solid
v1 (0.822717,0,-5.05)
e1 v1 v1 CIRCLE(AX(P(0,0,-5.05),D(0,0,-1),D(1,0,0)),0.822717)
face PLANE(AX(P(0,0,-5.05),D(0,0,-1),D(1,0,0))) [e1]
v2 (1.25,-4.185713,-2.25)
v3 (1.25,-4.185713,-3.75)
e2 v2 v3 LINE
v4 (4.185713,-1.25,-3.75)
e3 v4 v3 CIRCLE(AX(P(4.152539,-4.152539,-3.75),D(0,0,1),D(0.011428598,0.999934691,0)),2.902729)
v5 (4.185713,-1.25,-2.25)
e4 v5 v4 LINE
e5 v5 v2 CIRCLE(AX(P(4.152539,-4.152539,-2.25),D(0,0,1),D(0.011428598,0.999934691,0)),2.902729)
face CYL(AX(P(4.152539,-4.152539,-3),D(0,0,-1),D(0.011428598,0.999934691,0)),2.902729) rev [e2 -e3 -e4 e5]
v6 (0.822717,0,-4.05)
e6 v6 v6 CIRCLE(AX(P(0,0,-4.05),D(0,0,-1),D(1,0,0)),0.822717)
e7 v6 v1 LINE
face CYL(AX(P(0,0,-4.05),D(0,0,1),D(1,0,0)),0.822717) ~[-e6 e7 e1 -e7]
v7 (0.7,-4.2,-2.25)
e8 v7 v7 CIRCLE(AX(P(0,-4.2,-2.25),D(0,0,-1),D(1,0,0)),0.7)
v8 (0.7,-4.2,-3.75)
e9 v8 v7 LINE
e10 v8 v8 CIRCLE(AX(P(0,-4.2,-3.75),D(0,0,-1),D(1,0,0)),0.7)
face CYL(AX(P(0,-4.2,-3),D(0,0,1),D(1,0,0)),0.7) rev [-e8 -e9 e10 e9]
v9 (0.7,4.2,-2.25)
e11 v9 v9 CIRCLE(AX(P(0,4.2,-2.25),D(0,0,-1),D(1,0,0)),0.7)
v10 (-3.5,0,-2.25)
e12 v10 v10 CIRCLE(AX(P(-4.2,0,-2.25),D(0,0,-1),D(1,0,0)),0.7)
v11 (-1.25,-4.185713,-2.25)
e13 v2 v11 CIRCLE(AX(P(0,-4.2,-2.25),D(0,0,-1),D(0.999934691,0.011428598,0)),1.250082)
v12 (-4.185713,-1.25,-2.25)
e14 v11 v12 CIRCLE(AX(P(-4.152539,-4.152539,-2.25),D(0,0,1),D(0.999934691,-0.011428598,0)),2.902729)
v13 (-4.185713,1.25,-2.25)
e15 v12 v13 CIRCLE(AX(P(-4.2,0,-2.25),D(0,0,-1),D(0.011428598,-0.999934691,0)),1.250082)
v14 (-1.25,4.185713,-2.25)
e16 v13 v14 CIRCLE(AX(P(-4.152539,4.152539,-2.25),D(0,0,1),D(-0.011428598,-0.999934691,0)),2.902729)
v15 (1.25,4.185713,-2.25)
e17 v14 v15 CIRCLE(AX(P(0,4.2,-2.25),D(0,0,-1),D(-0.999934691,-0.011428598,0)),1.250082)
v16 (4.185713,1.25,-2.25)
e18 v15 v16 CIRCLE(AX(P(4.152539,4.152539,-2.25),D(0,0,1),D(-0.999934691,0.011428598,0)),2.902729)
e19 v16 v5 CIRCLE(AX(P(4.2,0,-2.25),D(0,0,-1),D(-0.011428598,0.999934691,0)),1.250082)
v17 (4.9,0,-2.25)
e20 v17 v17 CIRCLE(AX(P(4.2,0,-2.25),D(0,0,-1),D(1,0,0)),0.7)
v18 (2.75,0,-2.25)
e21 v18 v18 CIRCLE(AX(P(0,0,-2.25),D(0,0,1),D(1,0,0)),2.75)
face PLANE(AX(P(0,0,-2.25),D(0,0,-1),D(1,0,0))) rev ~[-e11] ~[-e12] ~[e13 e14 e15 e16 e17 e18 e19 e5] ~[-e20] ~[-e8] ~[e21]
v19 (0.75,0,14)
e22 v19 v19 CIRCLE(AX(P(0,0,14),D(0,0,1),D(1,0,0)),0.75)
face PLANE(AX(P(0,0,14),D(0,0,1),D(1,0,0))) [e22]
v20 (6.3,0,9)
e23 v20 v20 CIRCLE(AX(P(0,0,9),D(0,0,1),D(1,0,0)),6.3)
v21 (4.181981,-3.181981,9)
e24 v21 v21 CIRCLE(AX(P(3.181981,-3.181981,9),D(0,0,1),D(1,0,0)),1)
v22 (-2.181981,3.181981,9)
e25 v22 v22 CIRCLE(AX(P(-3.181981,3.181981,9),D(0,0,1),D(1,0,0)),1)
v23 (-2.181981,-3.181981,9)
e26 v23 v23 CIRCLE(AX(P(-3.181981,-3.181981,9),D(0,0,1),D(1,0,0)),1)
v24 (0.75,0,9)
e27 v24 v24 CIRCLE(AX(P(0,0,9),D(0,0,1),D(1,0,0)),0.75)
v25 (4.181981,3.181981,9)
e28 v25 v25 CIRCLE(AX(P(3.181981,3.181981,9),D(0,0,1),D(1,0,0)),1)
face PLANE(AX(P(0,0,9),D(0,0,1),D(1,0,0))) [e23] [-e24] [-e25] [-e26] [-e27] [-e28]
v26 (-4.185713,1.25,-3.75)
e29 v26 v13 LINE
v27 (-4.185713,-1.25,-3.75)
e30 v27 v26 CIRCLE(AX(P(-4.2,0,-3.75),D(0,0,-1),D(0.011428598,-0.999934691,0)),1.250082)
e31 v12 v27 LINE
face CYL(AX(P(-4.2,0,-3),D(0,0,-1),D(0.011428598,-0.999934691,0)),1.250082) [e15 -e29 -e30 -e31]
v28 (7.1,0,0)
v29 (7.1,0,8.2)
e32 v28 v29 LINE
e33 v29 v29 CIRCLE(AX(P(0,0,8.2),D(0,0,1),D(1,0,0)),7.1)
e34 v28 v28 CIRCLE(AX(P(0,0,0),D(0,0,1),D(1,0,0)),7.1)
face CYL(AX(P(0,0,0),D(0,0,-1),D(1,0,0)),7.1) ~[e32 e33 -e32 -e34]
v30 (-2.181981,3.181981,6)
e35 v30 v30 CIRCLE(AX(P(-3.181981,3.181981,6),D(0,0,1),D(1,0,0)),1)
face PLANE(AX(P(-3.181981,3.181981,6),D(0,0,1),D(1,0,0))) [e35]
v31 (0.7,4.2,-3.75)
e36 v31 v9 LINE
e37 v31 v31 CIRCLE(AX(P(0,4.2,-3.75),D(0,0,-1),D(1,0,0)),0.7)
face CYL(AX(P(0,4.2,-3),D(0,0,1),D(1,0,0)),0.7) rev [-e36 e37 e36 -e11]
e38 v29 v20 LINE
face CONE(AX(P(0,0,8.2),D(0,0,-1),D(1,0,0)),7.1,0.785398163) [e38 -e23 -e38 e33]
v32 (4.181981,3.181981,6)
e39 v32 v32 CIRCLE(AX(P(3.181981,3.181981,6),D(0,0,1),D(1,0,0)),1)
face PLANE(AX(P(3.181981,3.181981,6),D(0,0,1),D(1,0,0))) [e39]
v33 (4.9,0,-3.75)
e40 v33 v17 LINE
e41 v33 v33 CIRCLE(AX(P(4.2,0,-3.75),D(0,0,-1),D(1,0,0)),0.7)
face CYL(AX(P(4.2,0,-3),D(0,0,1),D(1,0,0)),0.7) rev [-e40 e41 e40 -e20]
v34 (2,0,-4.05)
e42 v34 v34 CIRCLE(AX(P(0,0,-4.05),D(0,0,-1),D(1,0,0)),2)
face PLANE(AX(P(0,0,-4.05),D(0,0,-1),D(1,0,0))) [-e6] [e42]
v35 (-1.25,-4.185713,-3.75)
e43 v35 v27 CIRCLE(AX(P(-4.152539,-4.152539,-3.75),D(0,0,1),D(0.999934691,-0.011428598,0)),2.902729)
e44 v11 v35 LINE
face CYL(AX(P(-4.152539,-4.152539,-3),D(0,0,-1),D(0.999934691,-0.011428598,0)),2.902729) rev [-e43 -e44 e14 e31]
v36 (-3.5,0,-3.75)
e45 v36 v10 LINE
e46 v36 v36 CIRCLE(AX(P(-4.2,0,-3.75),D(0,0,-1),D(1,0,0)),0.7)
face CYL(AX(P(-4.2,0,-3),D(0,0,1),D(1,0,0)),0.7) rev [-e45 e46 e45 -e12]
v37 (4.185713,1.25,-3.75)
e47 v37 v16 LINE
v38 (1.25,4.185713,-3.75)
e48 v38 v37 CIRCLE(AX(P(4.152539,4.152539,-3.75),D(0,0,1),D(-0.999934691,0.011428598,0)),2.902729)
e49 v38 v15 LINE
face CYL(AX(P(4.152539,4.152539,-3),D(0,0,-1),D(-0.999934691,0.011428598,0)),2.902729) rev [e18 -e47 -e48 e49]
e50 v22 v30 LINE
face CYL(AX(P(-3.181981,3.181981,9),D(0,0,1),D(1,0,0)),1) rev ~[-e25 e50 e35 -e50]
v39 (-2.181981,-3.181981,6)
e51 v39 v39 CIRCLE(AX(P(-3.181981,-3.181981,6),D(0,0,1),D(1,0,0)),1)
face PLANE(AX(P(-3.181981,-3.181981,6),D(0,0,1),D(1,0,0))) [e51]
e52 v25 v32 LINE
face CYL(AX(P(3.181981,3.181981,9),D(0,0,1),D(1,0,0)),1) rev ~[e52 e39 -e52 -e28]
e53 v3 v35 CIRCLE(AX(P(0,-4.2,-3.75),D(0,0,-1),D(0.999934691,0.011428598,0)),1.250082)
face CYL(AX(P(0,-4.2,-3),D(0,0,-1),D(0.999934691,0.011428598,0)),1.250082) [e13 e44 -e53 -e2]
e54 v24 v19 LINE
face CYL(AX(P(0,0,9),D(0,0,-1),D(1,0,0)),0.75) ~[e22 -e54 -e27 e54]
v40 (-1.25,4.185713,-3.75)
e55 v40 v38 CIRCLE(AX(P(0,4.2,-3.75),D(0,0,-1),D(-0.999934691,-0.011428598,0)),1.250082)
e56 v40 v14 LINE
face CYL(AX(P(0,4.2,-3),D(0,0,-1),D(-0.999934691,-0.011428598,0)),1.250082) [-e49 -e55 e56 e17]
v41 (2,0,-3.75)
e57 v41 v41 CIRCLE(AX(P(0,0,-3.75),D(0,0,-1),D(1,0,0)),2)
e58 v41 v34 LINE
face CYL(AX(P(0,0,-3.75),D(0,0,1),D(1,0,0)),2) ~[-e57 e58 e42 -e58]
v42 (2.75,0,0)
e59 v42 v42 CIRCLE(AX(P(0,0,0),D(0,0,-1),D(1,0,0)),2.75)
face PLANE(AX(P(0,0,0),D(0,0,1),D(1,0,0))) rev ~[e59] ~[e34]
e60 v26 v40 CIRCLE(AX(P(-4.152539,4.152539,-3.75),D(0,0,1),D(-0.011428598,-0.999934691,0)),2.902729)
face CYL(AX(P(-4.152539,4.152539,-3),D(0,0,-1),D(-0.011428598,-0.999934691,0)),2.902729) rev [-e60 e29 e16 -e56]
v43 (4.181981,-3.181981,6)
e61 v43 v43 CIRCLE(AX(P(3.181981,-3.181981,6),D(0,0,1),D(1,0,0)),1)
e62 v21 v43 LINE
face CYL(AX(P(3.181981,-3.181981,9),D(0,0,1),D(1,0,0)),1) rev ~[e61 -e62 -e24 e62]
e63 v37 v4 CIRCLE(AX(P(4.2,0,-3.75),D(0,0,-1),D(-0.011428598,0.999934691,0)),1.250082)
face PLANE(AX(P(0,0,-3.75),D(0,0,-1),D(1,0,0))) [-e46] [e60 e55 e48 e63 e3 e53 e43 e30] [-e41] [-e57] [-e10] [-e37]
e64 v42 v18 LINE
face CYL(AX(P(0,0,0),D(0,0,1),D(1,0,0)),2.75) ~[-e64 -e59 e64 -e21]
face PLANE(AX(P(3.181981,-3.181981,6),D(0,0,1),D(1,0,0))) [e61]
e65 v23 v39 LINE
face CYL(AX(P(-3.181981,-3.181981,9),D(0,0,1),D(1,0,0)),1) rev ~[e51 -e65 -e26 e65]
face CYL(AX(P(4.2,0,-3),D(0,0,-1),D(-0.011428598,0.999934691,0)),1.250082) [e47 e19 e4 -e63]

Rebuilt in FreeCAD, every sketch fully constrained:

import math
import FreeCAD as App
import Part
import Sketcher
Q = App.Units.Quantity


def edges_at(feature, points):
    """Names of the edges that pass closest to the given points."""
    edges = feature.Shape.Edges
    near = lambda p: min(range(len(edges)), key=lambda i: edges[i].distToShape(Part.Vertex(*p))[0])
    return sorted({f"Edge{near(p) + 1}" for p in points})

doc = App.newDocument("Part")
params = doc.addObject("Spreadsheet::Sheet", "Params")
for row, (alias, value) in enumerate([
    ("sketch1_diameter", "14.2 mm"),
    ("pad1_length", "9 mm"),
    ("sketch2_diameter", "1.5 mm"),
    ("pad2_length", "5 mm"),
    ("sketch3_diameter", "2 mm"),
    ("pocket1_length", "3 mm"),
    ("sketch4_diameter", "5.5 mm"),
    ("pad3_length", "3 mm"),
    ("sketch5_diameter", "1.4 mm"),
    ("pad4_length", "1.5 mm"),
    ("sketch6_diameter", "4 mm"),
    ("pad5_length", "0.3 mm"),
    ("pad6_length", "1 mm"),
    ("chamfer_size", "0.8 mm"),
], start=1):
    params.set(f"A{row}", alias)
    params.set(f"B{row}", "=" + value)
    params.setAlias(f"B{row}", alias)

body = doc.addObject("PartDesign::Body", "Body")

# Sketch on XY plane
sketch1 = body.newObject("Sketcher::SketchObject", "Sketch")
sketch1.AttachmentSupport = (doc.getObject("XY_Plane"), [""])
sketch1.MapMode = "FlatFace"
sketch1.addGeometry(Part.Circle(App.Vector(0, 0, 0), App.Vector(0, 0, 1), 7), False)
sketch1.addConstraint([
    Sketcher.Constraint("Coincident", 0, 3, -1, 1),
    Sketcher.Constraint("Diameter", 0, Q("14.2 mm")),
])
sketch1.setExpression("Constraints[1]", "Params.sketch1_diameter")
pad1 = body.newObject("PartDesign::Pad", "Pad")
pad1.Profile = sketch1
pad1.setExpression("Length", "Params.pad1_length")

# Sketch on XY plane
sketch2 = body.newObject("Sketcher::SketchObject", "Sketch001")
sketch2.AttachmentSupport = (doc.getObject("XY_Plane"), [""])
sketch2.MapMode = "FlatFace"
sketch2.AttachmentOffset = App.Placement(App.Vector(0, 0, 9), App.Rotation())
sketch2.addGeometry(Part.Circle(App.Vector(0, 0, 0), App.Vector(0, 0, 1), 0.8), False)
sketch2.addConstraint([
    Sketcher.Constraint("Coincident", 0, 3, -1, 1),
    Sketcher.Constraint("Diameter", 0, Q("1.5 mm")),
])
sketch2.setExpression("Constraints[1]", "Params.sketch2_diameter")
pad2 = body.newObject("PartDesign::Pad", "Pad001")
pad2.Profile = sketch2
pad2.setExpression("Length", "Params.pad2_length")

# Sketch on XY plane
sketch3 = body.newObject("Sketcher::SketchObject", "Sketch002")
sketch3.AttachmentSupport = (doc.getObject("XY_Plane"), [""])
sketch3.MapMode = "FlatFace"
sketch3.AttachmentOffset = App.Placement(App.Vector(0, 0, 9), App.Rotation())
sketch3.addGeometry([
    Part.Circle(App.Vector(3.2, 3.2, 0), App.Vector(0, 0, 1), 1),
    Part.Circle(App.Vector(-3.2, 3.2, 0), App.Vector(0, 0, 1), 1),
    Part.Circle(App.Vector(-3.2, -3.2, 0), App.Vector(0, 0, 1), 1),
    Part.Circle(App.Vector(3.2, -3.2, 0), App.Vector(0, 0, 1), 1),
], False)
sketch3.addConstraint([
    Sketcher.Constraint("Equal", 0, 1),
    Sketcher.Constraint("Equal", 1, 2),
    Sketcher.Constraint("Equal", 2, 3),
    Sketcher.Constraint("Symmetric", 0, 3, 2, 3, -1, 1),
    Sketcher.Constraint("Symmetric", 1, 3, 3, 3, -1, 1),
    Sketcher.Constraint("Symmetric", 0, 3, 1, 3, -2),
    Sketcher.Constraint("Diameter", 0, Q("2 mm")),
    Sketcher.Constraint("DistanceX", -1, 1, 0, 3, Q("3.181981 mm")),
    Sketcher.Constraint("DistanceY", -1, 1, 0, 3, Q("3.181981 mm")),
])
sketch3.setExpression("Constraints[6]", "Params.sketch3_diameter")
pocket1 = body.newObject("PartDesign::Pocket", "Pocket")
pocket1.Profile = sketch3
pocket1.setExpression("Length", "Params.pocket1_length")

# Sketch on XY plane
sketch4 = body.newObject("Sketcher::SketchObject", "Sketch003")
sketch4.AttachmentSupport = (doc.getObject("XY_Plane"), [""])
sketch4.MapMode = "FlatFace"
sketch4.addGeometry(Part.Circle(App.Vector(0, 0, 0), App.Vector(0, 0, 1), 2.8), False)
sketch4.addConstraint([
    Sketcher.Constraint("Coincident", 0, 3, -1, 1),
    Sketcher.Constraint("Diameter", 0, Q("5.5 mm")),
])
sketch4.setExpression("Constraints[1]", "Params.sketch4_diameter")
pad3 = body.newObject("PartDesign::Pad", "Pad002")
pad3.Profile = sketch4
pad3.setExpression("Length", "Params.pad3_length")
pad3.Reversed = True

# Sketch on XY plane
sketch5 = body.newObject("Sketcher::SketchObject", "Sketch004")
sketch5.AttachmentSupport = (doc.getObject("XY_Plane"), [""])
sketch5.MapMode = "FlatFace"
sketch5.AttachmentOffset = App.Placement(App.Vector(0, 0, -3), App.Rotation())
sketch5.addGeometry([
    Part.ArcOfCircle(Part.Circle(App.Vector(4.2, 0, 0), App.Vector(0, 0, 1), 1.3), math.radians(-91), math.radians(91)),  # 0
    Part.ArcOfCircle(Part.Circle(App.Vector(4.2, -4.2, 0), App.Vector(0, 0, 1), 2.9), math.radians(89), math.radians(181)),  # 1
    Part.ArcOfCircle(Part.Circle(App.Vector(0, -4.2, 0), App.Vector(0, 0, 1), 1.3), math.radians(179), math.radians(361)),  # 2
    Part.ArcOfCircle(Part.Circle(App.Vector(-4.2, -4.2, 0), App.Vector(0, 0, 1), 2.9), math.radians(-1), math.radians(91)),  # 3
    Part.ArcOfCircle(Part.Circle(App.Vector(-4.2, 0, 0), App.Vector(0, 0, 1), 1.3), math.radians(89), math.radians(271)),  # 4
    Part.ArcOfCircle(Part.Circle(App.Vector(-4.2, 4.2, 0), App.Vector(0, 0, 1), 2.9), math.radians(-91), math.radians(1)),  # 5
    Part.ArcOfCircle(Part.Circle(App.Vector(0, 4.2, 0), App.Vector(0, 0, 1), 1.3), math.radians(-1), math.radians(181)),  # 6
    Part.ArcOfCircle(Part.Circle(App.Vector(4.2, 4.2, 0), App.Vector(0, 0, 1), 2.9), math.radians(179), math.radians(271)),  # 7
    Part.Circle(App.Vector(0, 4.2, 0), App.Vector(0, 0, 1), 0.7),  # 8
    Part.Circle(App.Vector(-4.2, 0, 0), App.Vector(0, 0, 1), 0.7),  # 9
    Part.Circle(App.Vector(4.2, 0, 0), App.Vector(0, 0, 1), 0.7),  # 10
    Part.Circle(App.Vector(0, -4.2, 0), App.Vector(0, 0, 1), 0.7),  # 11
], False)
sketch5.addConstraint([
    Sketcher.Constraint("Tangent", 0, 1, 1, 1),
    Sketcher.Constraint("Tangent", 1, 2, 2, 2),
    Sketcher.Constraint("Tangent", 2, 1, 3, 1),
    Sketcher.Constraint("Tangent", 3, 2, 4, 2),
    Sketcher.Constraint("Tangent", 4, 1, 5, 1),
    Sketcher.Constraint("Tangent", 5, 2, 6, 2),
    Sketcher.Constraint("Tangent", 6, 1, 7, 1),
    Sketcher.Constraint("Tangent", 7, 2, 0, 2),
    Sketcher.Constraint("Coincident", 8, 3, 6, 3),
    Sketcher.Constraint("Coincident", 9, 3, 4, 3),
    Sketcher.Constraint("Coincident", 10, 3, 0, 3),
    Sketcher.Constraint("Coincident", 11, 3, 2, 3),
    Sketcher.Constraint("Equal", 0, 2),
    Sketcher.Constraint("Equal", 1, 3),
    Sketcher.Constraint("Equal", 2, 4),
    Sketcher.Constraint("Equal", 3, 5),
    Sketcher.Constraint("Equal", 4, 6),
    Sketcher.Constraint("Equal", 5, 7),
    Sketcher.Constraint("Equal", 8, 9),
    Sketcher.Constraint("Equal", 9, 10),
    Sketcher.Constraint("Equal", 10, 11),
    Sketcher.Constraint("Symmetric", 0, 3, 4, 3, -1, 1),
    Sketcher.Constraint("Symmetric", 2, 3, 6, 3, -1, 1),
    Sketcher.Constraint("Symmetric", 1, 3, 3, 3, -2),
    Sketcher.Constraint("Diameter", 8, Q("1.4 mm")),
    Sketcher.Constraint("DistanceX", -1, 1, 0, 3, Q("4.2 mm")),
    Sketcher.Constraint("DistanceY", 2, 3, -1, 1, Q("4.2 mm")),
    Sketcher.Constraint("DistanceX", 2, 1, 1, 2, Q("2.5 mm")),
    Sketcher.Constraint("Radius", 1, Q("2.902729 mm")),
])
sketch5.setExpression("Constraints[24]", "Params.sketch5_diameter")
pad4 = body.newObject("PartDesign::Pad", "Pad003")
pad4.Profile = sketch5
pad4.setExpression("Length", "Params.pad4_length")
pad4.Midplane = True

# Sketch on XY plane
sketch6 = body.newObject("Sketcher::SketchObject", "Sketch005")
sketch6.AttachmentSupport = (doc.getObject("XY_Plane"), [""])
sketch6.MapMode = "FlatFace"
sketch6.AttachmentOffset = App.Placement(App.Vector(0, 0, -3.75), App.Rotation())
sketch6.addGeometry(Part.Circle(App.Vector(0, 0, 0), App.Vector(0, 0, 1), 2), False)
sketch6.addConstraint([
    Sketcher.Constraint("Coincident", 0, 3, -1, 1),
    Sketcher.Constraint("Diameter", 0, Q("4 mm")),
])
sketch6.setExpression("Constraints[1]", "Params.sketch6_diameter")
pad5 = body.newObject("PartDesign::Pad", "Pad004")
pad5.Profile = sketch6
pad5.setExpression("Length", "Params.pad5_length")
pad5.Reversed = True

# Sketch on XY plane
sketch7 = body.newObject("Sketcher::SketchObject", "Sketch006")
sketch7.AttachmentSupport = (doc.getObject("XY_Plane"), [""])
sketch7.MapMode = "FlatFace"
sketch7.AttachmentOffset = App.Placement(App.Vector(0, 0, -4.05), App.Rotation())
sketch7.addGeometry(Part.Circle(App.Vector(0, 0, 0), App.Vector(0, 0, 1), 0.8), False)
sketch7.addConstraint([
    Sketcher.Constraint("Coincident", 0, 3, -1, 1),
    Sketcher.Constraint("Diameter", 0, Q("1.645435 mm")),
])
pad6 = body.newObject("PartDesign::Pad", "Pad005")
pad6.Profile = sketch7
pad6.setExpression("Length", "Params.pad6_length")
pad6.Reversed = True
doc.recompute()

chamfer = body.newObject("PartDesign::Chamfer", "Chamfer")
chamfer.Base = (pad6, edges_at(pad6, [(-7.1, 0, 9)]))
chamfer.setExpression("Size", "Params.chamfer_size")

doc.recompute()
